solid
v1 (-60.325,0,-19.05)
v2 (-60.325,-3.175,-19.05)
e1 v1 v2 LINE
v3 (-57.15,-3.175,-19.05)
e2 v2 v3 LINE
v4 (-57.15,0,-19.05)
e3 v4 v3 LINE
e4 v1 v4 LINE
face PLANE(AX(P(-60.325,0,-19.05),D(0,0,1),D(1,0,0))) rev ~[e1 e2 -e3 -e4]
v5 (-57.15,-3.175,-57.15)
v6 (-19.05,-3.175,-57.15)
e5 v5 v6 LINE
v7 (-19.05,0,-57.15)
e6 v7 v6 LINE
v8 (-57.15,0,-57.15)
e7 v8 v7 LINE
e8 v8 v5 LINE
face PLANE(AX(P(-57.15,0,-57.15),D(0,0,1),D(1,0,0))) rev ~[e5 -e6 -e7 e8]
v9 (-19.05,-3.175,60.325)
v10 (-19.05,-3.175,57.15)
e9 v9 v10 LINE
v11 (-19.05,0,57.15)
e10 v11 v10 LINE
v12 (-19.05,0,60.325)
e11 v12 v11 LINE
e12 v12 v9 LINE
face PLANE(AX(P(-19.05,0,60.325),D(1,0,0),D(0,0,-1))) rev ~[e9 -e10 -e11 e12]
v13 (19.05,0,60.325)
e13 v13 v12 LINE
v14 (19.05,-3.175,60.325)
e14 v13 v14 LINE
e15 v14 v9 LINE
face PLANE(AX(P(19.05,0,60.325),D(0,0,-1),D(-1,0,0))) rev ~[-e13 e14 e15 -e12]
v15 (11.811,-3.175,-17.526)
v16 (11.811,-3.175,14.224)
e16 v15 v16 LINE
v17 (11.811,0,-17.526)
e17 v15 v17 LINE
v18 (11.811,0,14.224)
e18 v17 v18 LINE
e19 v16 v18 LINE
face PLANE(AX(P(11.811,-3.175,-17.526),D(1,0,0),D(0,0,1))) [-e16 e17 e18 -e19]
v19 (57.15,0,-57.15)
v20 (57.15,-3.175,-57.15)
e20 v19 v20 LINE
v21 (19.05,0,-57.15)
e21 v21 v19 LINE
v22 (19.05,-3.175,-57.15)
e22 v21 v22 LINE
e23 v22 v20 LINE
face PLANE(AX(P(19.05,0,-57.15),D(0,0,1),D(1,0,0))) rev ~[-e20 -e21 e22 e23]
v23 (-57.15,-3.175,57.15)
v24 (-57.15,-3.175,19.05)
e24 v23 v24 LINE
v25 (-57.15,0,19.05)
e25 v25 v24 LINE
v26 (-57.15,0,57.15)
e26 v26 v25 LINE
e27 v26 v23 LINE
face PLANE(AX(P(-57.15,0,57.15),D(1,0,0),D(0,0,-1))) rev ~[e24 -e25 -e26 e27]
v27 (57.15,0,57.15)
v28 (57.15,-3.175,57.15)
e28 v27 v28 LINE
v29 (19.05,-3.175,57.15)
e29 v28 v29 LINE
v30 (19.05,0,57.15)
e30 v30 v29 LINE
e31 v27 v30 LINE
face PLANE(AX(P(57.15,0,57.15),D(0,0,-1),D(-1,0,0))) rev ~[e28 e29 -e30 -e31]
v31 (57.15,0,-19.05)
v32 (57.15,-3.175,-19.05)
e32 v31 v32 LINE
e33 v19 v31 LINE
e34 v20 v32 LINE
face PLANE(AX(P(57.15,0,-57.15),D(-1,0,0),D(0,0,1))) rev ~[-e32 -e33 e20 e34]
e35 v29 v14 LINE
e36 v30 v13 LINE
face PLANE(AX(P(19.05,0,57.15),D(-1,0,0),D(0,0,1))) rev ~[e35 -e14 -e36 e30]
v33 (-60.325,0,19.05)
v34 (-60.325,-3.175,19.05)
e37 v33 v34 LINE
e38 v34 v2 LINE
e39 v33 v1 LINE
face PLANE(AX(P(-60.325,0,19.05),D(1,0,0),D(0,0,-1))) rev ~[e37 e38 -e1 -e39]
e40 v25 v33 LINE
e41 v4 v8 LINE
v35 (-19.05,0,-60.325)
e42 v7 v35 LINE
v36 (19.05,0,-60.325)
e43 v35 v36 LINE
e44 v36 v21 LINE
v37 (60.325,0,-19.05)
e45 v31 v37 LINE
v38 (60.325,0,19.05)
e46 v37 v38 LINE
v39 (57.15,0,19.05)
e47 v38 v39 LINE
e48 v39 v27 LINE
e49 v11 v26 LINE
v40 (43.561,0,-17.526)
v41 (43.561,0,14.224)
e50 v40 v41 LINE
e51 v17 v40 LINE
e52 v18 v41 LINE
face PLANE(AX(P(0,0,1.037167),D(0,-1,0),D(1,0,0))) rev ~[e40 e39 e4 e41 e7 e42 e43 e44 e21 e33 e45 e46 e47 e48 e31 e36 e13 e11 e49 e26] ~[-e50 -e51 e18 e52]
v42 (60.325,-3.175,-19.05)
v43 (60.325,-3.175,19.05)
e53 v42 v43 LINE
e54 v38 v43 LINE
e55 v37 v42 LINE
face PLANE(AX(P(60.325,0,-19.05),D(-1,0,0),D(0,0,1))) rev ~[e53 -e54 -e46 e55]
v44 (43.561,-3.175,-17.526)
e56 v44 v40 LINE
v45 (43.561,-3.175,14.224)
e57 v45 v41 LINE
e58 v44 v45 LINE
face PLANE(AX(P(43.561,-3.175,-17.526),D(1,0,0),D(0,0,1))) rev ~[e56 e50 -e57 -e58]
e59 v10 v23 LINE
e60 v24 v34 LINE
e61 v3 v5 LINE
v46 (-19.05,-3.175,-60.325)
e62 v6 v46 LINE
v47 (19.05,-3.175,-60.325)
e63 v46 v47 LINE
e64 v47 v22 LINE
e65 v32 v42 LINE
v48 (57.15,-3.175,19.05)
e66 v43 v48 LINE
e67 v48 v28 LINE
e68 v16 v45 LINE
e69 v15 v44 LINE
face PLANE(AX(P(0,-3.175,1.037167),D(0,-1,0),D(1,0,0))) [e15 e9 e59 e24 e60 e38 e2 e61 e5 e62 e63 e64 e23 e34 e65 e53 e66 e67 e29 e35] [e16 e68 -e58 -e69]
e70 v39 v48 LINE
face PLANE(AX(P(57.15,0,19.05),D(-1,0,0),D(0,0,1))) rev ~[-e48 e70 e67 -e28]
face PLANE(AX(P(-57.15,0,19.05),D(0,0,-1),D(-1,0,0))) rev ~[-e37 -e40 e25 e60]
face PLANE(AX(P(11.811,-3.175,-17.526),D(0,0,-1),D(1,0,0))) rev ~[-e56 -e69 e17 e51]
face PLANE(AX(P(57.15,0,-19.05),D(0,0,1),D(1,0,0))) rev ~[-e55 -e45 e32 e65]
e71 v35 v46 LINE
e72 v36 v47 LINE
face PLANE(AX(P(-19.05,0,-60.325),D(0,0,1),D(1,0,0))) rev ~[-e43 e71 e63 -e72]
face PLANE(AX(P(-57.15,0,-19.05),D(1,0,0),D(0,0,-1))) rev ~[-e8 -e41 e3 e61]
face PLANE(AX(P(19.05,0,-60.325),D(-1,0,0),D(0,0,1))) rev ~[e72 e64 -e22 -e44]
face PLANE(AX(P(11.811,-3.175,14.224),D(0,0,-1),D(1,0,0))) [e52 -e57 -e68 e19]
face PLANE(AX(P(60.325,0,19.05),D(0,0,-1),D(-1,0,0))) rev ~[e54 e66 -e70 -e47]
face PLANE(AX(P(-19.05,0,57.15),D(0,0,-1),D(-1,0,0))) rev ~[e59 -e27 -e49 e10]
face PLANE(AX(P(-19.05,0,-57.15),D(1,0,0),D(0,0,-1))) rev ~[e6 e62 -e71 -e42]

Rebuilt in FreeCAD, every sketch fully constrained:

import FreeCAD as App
import Part
import Sketcher
from FreeCAD import Vector
Q = App.Units.Quantity


def add_polygon(sketch, points):
    """Adds a closed chain of lines whose ends are joined by coincident constraints."""
    first, n = sketch.GeometryCount, len(points)
    for a, b in zip(points, points[1:] + points[:1]):
        sketch.addGeometry(Part.LineSegment(App.Vector(*a, 0), App.Vector(*b, 0)), False)
    for i in range(n):
        sketch.addConstraint(Sketcher.Constraint("Coincident", first + i, 2, first + (i + 1) % n, 1))

doc = App.newDocument("Part")
params = doc.addObject("Spreadsheet::Sheet", "Params")
for row, (alias, value) in enumerate([
    ("sketch1_width", "1.5 in"),
    ("sketch1_width2", "0.125 in"),
    ("pad1_length", "0.125 in"),
    ("sketch2_width", "1.25 in"),
], start=1):
    params.set(f"A{row}", alias)
    params.set(f"B{row}", "=" + value)
    params.setAlias(f"B{row}", alias)

body = doc.addObject("PartDesign::Body", "Body")

# Sketch on XZ plane
sketch1 = body.newObject("Sketcher::SketchObject", "Sketch")
sketch1.AttachmentSupport = (doc.getObject("XZ_Plane"), [""])
sketch1.MapMode = "FlatFace"
add_polygon(sketch1, [(57.15, -19.05), (60.325, -19.05), (60.325, 19.05), (57.15, 19.05), (57.15, 57.15), (19.05, 57.15), (19.05, 60.325), (-19.05, 60.325), (-19.05, 57.15), (-57.15, 57.15), (-57.15, 19.05), (-60.325, 19.05), (-60.325, -19.05), (-57.15, -19.05), (-57.15, -57.15), (-19.05, -57.15), (-19.05, -60.325), (19.05, -60.325), (19.05, -57.15), (57.15, -57.15)])  # lines 0-19
sketch1.addConstraint([
    Sketcher.Constraint("Horizontal", 0),
    Sketcher.Constraint("Vertical", 1),
    Sketcher.Constraint("Horizontal", 2),
    Sketcher.Constraint("Vertical", 3),
    Sketcher.Constraint("Horizontal", 4),
    Sketcher.Constraint("Vertical", 5),
    Sketcher.Constraint("Horizontal", 6),
    Sketcher.Constraint("Vertical", 7),
    Sketcher.Constraint("Horizontal", 8),
    Sketcher.Constraint("Vertical", 9),
    Sketcher.Constraint("Horizontal", 10),
    Sketcher.Constraint("Vertical", 11),
    Sketcher.Constraint("Horizontal", 12),
    Sketcher.Constraint("Vertical", 13),
    Sketcher.Constraint("Horizontal", 14),
    Sketcher.Constraint("Vertical", 15),
    Sketcher.Constraint("Horizontal", 16),
    Sketcher.Constraint("Vertical", 17),
    Sketcher.Constraint("Horizontal", 18),
    Sketcher.Constraint("Vertical", 19),
    Sketcher.Constraint("Symmetric", 0, 2, 10, 2, -1, 1),
    Sketcher.Constraint("Symmetric", 2, 2, 12, 2, -1, 1),
    Sketcher.Constraint("Symmetric", 4, 2, 14, 2, -1, 1),
    Sketcher.Constraint("Symmetric", 6, 2, 16, 2, -1, 1),
    Sketcher.Constraint("Symmetric", 8, 2, 18, 2, -1, 1),
    Sketcher.Constraint("Symmetric", 4, 2, 7, 2, -2),
    Sketcher.Constraint("Symmetric", 2, 2, 9, 2, -2),
    Sketcher.Constraint("Equal", 4, 6),
    Sketcher.Constraint("Equal", 18, 1),
    Sketcher.Constraint("Equal", 1, 3),
    Sketcher.Constraint("Equal", 12, 5),
    Sketcher.Constraint("DistanceX", 4, 2, 4, 1, Q("1.5 in")),
    Sketcher.Constraint("DistanceX", 0, 1, 0, 2, Q("0.125 in")),
])
sketch1.setExpression("Constraints[51]", "Params.sketch1_width")
sketch1.setExpression("Constraints[52]", "Params.sketch1_width2")
pad1 = body.newObject("PartDesign::Pad", "Pad")
pad1.Profile = sketch1
pad1.setExpression("Length", "Params.pad1_length")

# Sketch on XZ plane
sketch2 = body.newObject("Sketcher::SketchObject", "Sketch001")
sketch2.AttachmentSupport = (doc.getObject("XZ_Plane"), [""])
sketch2.MapMode = "FlatFace"
sketch2.AttachmentOffset = App.Placement(Vector(0, 0, 0.125 * 25.4), App.Rotation())
add_polygon(sketch2, [(11.811, 14.224), (11.811, -17.526), (43.561, -17.526), (43.561, 14.224)])  # lines 0-3
sketch2.addConstraint([
    Sketcher.Constraint("Vertical", 0),
    Sketcher.Constraint("Horizontal", 1),
    Sketcher.Constraint("Vertical", 2),
    Sketcher.Constraint("Horizontal", 3),
    Sketcher.Constraint("Equal", 3, 0),
    Sketcher.Constraint("DistanceX", 1, 1, 1, 2, Q("1.25 in")),
    Sketcher.Constraint("DistanceY", 0, 2, -1, 1, Q("0.69 in")),
    Sketcher.Constraint("DistanceX", -1, 1, 0, 2, Q("0.465 in")),
])
sketch2.setExpression("Constraints[9]", "Params.sketch2_width")
pocket1 = body.newObject("PartDesign::Pocket", "Pocket")
pocket1.Profile = sketch2
pocket1.Type = "ThroughAll"

doc.recompute()
